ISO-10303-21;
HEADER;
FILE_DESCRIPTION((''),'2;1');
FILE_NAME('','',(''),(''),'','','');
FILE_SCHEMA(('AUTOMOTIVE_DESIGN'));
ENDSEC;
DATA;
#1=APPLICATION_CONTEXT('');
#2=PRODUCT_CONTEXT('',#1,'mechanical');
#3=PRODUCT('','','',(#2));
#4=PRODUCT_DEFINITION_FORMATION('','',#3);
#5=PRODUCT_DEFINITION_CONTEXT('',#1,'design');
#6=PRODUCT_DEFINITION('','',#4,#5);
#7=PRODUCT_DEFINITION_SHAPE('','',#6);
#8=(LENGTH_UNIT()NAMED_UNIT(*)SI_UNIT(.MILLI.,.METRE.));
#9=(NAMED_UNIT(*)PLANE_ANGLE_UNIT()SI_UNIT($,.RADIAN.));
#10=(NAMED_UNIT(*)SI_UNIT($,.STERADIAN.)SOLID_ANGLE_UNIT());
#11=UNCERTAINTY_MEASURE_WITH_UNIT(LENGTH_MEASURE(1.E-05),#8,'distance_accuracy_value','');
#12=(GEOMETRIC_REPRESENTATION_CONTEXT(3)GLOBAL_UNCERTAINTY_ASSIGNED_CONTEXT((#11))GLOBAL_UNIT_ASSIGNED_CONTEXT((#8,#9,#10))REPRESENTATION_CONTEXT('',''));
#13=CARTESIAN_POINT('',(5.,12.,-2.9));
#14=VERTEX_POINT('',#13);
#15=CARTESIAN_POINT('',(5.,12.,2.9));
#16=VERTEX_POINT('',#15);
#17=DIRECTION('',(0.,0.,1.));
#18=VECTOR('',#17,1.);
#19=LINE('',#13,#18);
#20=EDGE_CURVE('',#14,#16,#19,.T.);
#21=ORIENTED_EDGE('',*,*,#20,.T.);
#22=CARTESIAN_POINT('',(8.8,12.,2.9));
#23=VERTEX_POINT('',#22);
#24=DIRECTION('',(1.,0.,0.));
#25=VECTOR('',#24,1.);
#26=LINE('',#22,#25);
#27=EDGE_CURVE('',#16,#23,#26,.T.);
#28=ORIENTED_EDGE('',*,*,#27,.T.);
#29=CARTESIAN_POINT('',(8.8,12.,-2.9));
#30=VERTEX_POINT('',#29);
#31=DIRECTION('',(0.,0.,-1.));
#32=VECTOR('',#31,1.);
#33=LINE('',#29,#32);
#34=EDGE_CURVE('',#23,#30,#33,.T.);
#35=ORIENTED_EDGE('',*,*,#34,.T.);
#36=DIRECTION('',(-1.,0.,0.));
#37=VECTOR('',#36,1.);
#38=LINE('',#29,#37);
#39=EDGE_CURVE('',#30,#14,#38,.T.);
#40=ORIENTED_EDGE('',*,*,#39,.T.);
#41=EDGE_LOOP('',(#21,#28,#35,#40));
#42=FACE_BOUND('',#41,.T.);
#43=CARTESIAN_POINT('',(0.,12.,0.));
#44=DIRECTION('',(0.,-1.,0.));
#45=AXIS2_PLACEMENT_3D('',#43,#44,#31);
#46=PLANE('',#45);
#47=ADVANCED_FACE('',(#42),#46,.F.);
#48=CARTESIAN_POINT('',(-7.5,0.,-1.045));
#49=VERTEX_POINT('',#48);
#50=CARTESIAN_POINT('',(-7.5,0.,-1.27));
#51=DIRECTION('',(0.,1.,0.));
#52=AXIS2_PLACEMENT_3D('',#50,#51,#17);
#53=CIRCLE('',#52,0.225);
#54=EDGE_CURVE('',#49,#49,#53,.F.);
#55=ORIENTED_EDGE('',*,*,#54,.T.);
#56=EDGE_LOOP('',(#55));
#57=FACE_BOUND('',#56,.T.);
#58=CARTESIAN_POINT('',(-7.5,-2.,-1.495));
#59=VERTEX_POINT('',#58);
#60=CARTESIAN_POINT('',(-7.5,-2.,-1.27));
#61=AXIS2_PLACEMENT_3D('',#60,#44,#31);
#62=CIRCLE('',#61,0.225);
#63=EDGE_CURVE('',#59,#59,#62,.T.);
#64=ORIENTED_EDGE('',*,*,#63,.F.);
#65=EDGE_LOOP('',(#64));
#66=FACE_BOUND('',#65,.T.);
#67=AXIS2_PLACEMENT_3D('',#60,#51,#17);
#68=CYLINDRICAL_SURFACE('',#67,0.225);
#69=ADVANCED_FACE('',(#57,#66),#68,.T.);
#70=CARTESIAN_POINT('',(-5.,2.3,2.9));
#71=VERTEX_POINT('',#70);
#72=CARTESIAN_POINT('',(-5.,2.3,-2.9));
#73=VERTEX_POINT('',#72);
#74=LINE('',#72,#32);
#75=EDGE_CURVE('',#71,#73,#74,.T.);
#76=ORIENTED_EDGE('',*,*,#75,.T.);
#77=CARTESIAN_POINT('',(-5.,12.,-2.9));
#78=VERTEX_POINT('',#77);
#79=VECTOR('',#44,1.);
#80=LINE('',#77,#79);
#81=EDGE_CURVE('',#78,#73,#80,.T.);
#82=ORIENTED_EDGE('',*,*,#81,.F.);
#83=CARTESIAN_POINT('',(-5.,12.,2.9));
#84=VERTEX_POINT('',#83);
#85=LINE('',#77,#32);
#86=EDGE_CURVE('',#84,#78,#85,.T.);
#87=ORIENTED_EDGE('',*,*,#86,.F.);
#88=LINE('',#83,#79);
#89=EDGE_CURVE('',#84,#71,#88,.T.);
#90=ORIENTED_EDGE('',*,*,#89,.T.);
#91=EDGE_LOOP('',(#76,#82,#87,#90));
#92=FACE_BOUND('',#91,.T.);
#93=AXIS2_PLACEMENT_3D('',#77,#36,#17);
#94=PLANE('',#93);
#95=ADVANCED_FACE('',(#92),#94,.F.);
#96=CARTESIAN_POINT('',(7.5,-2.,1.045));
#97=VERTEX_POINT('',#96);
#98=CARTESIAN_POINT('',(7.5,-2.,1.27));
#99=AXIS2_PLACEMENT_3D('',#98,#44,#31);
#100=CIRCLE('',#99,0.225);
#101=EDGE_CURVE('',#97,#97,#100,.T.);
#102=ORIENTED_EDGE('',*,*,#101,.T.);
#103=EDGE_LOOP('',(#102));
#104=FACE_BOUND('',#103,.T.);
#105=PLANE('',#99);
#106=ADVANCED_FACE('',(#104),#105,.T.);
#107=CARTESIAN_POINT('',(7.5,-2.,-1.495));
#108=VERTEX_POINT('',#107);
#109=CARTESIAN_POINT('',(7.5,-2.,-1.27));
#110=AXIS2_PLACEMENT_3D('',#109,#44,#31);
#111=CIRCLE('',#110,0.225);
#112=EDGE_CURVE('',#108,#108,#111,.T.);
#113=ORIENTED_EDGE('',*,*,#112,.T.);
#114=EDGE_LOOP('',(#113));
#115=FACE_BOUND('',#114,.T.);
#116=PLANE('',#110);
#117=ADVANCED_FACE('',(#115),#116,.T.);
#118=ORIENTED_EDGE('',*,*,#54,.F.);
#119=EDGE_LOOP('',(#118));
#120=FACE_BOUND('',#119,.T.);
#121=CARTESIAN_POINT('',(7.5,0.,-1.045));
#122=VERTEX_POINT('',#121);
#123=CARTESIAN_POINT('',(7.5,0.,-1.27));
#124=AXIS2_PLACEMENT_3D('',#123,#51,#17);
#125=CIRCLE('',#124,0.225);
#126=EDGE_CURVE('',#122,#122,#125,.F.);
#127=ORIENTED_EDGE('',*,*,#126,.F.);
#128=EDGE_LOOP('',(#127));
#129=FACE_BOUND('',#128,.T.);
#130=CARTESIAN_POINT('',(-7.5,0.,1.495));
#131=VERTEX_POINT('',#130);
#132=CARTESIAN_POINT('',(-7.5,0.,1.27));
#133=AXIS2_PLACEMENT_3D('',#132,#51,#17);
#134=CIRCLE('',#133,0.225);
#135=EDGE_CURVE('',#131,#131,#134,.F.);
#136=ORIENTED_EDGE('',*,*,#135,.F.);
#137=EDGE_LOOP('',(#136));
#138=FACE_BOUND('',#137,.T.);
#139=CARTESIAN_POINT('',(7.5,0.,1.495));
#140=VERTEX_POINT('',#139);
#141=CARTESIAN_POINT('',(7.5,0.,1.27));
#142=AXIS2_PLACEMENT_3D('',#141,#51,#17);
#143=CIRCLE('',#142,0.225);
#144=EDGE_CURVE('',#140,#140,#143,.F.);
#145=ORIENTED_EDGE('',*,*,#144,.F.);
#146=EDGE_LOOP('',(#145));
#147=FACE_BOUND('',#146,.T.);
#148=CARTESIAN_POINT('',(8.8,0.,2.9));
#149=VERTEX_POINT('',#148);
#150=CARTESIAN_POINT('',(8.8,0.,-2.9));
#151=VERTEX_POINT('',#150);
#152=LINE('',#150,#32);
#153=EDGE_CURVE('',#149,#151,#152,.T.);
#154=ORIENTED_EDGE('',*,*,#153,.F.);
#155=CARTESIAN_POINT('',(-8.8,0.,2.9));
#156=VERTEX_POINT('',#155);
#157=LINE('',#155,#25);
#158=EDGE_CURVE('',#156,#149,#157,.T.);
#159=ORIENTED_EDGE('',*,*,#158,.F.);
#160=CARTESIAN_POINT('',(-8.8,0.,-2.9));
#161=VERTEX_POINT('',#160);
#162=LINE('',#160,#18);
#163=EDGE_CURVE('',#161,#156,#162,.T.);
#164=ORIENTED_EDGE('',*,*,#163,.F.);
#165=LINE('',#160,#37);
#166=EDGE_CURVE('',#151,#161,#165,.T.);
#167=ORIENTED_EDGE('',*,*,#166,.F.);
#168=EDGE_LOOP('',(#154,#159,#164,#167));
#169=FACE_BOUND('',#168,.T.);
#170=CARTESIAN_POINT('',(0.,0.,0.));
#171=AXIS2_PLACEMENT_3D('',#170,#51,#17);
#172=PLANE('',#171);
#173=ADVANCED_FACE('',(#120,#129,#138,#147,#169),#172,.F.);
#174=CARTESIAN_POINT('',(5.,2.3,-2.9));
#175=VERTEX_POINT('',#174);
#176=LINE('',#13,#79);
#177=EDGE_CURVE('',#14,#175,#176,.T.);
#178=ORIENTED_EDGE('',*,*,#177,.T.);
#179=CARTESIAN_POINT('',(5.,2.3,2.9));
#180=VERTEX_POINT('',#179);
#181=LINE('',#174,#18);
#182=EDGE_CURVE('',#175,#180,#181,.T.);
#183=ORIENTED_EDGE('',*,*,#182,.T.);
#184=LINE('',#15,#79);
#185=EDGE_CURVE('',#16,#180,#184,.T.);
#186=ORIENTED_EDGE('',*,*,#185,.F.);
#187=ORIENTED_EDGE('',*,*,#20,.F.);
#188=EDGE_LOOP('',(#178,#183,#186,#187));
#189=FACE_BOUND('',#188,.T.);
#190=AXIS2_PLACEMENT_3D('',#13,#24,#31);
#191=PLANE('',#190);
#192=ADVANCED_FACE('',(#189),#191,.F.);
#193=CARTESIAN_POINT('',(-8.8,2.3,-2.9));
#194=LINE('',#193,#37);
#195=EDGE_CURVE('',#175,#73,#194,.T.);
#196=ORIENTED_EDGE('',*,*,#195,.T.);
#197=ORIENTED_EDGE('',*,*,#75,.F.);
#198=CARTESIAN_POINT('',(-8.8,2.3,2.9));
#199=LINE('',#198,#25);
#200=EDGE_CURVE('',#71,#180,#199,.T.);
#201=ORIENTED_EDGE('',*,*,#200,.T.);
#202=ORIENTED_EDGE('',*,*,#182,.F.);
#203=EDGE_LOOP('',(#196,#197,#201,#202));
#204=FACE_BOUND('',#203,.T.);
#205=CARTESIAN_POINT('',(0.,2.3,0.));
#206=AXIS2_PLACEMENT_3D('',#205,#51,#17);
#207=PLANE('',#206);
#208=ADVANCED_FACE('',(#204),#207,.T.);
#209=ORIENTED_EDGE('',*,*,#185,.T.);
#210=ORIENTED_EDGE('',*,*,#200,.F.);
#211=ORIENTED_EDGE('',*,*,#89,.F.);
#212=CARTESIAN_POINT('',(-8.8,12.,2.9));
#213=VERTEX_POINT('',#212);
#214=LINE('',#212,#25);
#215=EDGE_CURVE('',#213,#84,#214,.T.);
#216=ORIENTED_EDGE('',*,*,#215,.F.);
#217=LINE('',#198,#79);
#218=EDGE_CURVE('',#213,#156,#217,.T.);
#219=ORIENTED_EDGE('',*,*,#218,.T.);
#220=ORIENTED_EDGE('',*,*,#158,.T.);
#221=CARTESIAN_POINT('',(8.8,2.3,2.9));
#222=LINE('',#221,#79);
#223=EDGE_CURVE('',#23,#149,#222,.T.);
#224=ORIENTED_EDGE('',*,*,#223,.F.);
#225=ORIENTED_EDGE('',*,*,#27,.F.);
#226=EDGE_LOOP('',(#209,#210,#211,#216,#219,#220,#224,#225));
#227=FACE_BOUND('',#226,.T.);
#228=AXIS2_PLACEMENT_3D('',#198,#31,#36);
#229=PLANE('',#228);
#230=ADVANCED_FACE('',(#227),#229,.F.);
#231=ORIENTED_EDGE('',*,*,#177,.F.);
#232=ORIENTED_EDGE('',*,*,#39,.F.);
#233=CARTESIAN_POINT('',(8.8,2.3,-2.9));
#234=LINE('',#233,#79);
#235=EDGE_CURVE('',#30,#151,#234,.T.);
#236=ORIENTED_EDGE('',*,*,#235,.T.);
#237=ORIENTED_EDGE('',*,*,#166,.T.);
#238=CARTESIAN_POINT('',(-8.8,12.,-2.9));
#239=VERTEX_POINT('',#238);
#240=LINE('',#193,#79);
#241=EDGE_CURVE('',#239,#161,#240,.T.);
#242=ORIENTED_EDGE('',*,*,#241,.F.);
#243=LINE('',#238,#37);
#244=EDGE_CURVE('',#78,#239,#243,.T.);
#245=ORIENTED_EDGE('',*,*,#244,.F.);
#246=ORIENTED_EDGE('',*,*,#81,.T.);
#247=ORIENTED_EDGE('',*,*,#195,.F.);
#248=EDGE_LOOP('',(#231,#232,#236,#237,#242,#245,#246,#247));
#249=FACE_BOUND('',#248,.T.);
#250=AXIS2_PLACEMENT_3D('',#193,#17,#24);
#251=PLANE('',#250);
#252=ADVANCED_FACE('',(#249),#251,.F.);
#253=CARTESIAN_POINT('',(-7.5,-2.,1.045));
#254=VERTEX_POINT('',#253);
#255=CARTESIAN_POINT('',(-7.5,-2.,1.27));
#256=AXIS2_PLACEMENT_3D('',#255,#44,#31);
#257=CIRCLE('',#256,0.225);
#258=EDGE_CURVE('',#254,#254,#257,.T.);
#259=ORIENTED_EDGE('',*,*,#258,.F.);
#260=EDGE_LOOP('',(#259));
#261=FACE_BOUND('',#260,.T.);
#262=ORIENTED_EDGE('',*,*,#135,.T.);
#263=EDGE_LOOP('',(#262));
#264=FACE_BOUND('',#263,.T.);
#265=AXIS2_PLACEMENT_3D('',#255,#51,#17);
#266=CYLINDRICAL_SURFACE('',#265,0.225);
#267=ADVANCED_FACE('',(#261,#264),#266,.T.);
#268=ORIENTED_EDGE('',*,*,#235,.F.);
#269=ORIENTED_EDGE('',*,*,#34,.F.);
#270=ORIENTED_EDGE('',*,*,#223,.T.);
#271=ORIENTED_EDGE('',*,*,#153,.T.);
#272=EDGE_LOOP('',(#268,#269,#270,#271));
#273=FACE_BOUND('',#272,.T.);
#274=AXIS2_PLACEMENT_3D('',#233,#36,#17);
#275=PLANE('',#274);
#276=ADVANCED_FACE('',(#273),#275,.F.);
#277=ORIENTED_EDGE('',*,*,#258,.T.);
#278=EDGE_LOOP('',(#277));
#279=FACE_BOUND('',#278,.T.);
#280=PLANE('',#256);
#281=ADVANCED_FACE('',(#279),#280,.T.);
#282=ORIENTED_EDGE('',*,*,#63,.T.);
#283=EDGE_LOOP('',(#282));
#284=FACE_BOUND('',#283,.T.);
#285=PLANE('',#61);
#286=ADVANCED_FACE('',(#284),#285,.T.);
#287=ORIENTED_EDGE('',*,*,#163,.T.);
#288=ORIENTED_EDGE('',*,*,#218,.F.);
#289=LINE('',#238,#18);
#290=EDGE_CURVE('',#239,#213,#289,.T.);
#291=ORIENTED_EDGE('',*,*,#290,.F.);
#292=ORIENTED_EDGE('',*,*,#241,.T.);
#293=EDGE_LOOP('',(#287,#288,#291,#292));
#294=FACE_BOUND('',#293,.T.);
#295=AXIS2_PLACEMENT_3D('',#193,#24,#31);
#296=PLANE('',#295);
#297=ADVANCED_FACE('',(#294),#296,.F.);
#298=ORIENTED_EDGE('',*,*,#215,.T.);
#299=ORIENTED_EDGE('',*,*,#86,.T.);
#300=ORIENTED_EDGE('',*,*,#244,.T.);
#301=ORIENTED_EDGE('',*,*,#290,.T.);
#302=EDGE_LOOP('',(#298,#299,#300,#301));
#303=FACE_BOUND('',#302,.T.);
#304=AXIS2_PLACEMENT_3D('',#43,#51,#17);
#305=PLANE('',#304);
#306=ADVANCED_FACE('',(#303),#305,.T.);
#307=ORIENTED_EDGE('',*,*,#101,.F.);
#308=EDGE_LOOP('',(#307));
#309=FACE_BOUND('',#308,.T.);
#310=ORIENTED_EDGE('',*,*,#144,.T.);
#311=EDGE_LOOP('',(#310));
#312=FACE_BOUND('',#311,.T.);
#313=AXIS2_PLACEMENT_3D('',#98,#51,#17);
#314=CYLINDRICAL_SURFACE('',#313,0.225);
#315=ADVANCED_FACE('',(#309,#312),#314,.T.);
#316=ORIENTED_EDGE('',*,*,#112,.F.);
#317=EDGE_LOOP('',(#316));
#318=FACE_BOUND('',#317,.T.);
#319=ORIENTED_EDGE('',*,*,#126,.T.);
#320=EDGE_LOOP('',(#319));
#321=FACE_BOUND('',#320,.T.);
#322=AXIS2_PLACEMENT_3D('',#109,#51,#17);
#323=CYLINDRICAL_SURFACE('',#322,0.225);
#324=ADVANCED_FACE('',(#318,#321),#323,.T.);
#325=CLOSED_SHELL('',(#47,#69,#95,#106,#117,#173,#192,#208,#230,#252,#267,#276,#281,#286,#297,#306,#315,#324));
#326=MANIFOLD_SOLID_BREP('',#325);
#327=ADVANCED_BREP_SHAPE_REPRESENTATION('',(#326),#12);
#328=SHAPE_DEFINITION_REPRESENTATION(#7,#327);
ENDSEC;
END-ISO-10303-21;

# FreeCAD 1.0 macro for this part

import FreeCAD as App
import Part
import Sketcher
from FreeCAD import Vector


def add_polygon(sketch, points):
    """Adds a closed chain of lines whose ends are joined by coincident constraints."""
    first, n = sketch.GeometryCount, len(points)
    for a, b in zip(points, points[1:] + points[:1]):
        sketch.addGeometry(Part.LineSegment(App.Vector(*a, 0), App.Vector(*b, 0)), False)
    for i in range(n):
        sketch.addConstraint(Sketcher.Constraint("Coincident", first + i, 2, first + (i + 1) % n, 1))

doc = App.newDocument("Part")
body = doc.addObject("PartDesign::Body", "Body")

# Sketch on XZ plane
sketch1 = body.newObject("Sketcher::SketchObject", "Sketch")
sketch1.AttachmentSupport = (doc.getObject("XZ_Plane"), [""])
sketch1.MapMode = "FlatFace"
add_polygon(sketch1, [(-9, -3), (-9, 3), (9, 3), (9, -3)])  # lines 0-3
sketch1.addConstraint(Sketcher.Constraint("Vertical", 0))
sketch1.addConstraint(Sketcher.Constraint("Horizontal", 1))
sketch1.addConstraint(Sketcher.Constraint("Vertical", 2))
sketch1.addConstraint(Sketcher.Constraint("Horizontal", 3))
sketch1.addConstraint(Sketcher.Constraint("Symmetric", 0, 2, 2, 2, -1, 1))
sketch1.addConstraint(Sketcher.Constraint("DistanceX", 1, 1, 1, 2, 17.6))
sketch1.addConstraint(Sketcher.Constraint("DistanceY", 0, 1, 0, 2, 5.8))
pad1 = body.newObject("PartDesign::Pad", "Pad")
pad1.Profile = sketch1
pad1.Length = 2.3
pad1.Reversed = True

# Sketch on XZ plane
sketch2 = body.newObject("Sketcher::SketchObject", "Sketch001")
sketch2.AttachmentSupport = (doc.getObject("XZ_Plane"), [""])
sketch2.MapMode = "FlatFace"
sketch2.AttachmentOffset = App.Placement(Vector(0, 0, -2.3), App.Rotation())
add_polygon(sketch2, [(-8.8, -2.9), (-8.8, 2.9), (-5, 2.9), (-5, -2.9)])  # lines 0-3
add_polygon(sketch2, [(5, -2.9), (5, 2.9), (8.8, 2.9), (8.8, -2.9)])  # lines 4-7
sketch2.addConstraint(Sketcher.Constraint("Vertical", 0))
sketch2.addConstraint(Sketcher.Constraint("Horizontal", 1))
sketch2.addConstraint(Sketcher.Constraint("Vertical", 2))
sketch2.addConstraint(Sketcher.Constraint("Horizontal", 3))
sketch2.addConstraint(Sketcher.Constraint("Vertical", 4))
sketch2.addConstraint(Sketcher.Constraint("Horizontal", 5))
sketch2.addConstraint(Sketcher.Constraint("Vertical", 6))
sketch2.addConstraint(Sketcher.Constraint("Horizontal", 7))
sketch2.addConstraint(Sketcher.Constraint("Symmetric", 2, 2, 4, 2, -1, 1))
sketch2.addConstraint(Sketcher.Constraint("Symmetric", 0, 2, 6, 2, -1, 1))
sketch2.addConstraint(Sketcher.Constraint("Horizontal", 1, 2, 4, 2))
sketch2.addConstraint(Sketcher.Constraint("DistanceX", 1, 1, 1, 2, 3.8))
sketch2.addConstraint(Sketcher.Constraint("DistanceY", 0, 1, 0, 2, 5.8))
sketch2.addConstraint(Sketcher.Constraint("DistanceX", 1, 2, -1, 1, 5.0))
pad2 = body.newObject("PartDesign::Pad", "Pad001")
pad2.Profile = sketch2
pad2.Length = 9.7
pad2.Reversed = True

# Sketch on XZ plane
sketch3 = body.newObject("Sketcher::SketchObject", "Sketch002")
sketch3.AttachmentSupport = (doc.getObject("XZ_Plane"), [""])
sketch3.MapMode = "FlatFace"
sketch3.addGeometry(Part.Circle(Vector(-7.5, 1.27, 0), Vector(0, 0, 1), 0.23), False)
sketch3.addGeometry(Part.Circle(Vector(-7.5, -1.27, 0), Vector(0, 0, 1), 0.23), False)
sketch3.addGeometry(Part.Circle(Vector(7.5, 1.27, 0), Vector(0, 0, 1), 0.23), False)
sketch3.addGeometry(Part.Circle(Vector(7.5, -1.27, 0), Vector(0, 0, 1), 0.23), False)
sketch3.addConstraint(Sketcher.Constraint("Equal", 0, 1))
sketch3.addConstraint(Sketcher.Constraint("Equal", 1, 2))
sketch3.addConstraint(Sketcher.Constraint("Equal", 2, 3))
sketch3.addConstraint(Sketcher.Constraint("Symmetric", 1, 3, 2, 3, -1, 1))
sketch3.addConstraint(Sketcher.Constraint("Symmetric", 0, 3, 3, 3, -1, 1))
sketch3.addConstraint(Sketcher.Constraint("Symmetric", 0, 3, 2, 3, -2))
sketch3.addConstraint(Sketcher.Constraint("Diameter", 0, 0.45))
sketch3.addConstraint(Sketcher.Constraint("DistanceX", 0, 3, 2, 3, 15.0))
sketch3.addConstraint(Sketcher.Constraint("DistanceY", -1, 1, 0, 3, 1.27))
pad3 = body.newObject("PartDesign::Pad", "Pad002")
pad3.Profile = sketch3
pad3.Length = 2

doc.recompute()
